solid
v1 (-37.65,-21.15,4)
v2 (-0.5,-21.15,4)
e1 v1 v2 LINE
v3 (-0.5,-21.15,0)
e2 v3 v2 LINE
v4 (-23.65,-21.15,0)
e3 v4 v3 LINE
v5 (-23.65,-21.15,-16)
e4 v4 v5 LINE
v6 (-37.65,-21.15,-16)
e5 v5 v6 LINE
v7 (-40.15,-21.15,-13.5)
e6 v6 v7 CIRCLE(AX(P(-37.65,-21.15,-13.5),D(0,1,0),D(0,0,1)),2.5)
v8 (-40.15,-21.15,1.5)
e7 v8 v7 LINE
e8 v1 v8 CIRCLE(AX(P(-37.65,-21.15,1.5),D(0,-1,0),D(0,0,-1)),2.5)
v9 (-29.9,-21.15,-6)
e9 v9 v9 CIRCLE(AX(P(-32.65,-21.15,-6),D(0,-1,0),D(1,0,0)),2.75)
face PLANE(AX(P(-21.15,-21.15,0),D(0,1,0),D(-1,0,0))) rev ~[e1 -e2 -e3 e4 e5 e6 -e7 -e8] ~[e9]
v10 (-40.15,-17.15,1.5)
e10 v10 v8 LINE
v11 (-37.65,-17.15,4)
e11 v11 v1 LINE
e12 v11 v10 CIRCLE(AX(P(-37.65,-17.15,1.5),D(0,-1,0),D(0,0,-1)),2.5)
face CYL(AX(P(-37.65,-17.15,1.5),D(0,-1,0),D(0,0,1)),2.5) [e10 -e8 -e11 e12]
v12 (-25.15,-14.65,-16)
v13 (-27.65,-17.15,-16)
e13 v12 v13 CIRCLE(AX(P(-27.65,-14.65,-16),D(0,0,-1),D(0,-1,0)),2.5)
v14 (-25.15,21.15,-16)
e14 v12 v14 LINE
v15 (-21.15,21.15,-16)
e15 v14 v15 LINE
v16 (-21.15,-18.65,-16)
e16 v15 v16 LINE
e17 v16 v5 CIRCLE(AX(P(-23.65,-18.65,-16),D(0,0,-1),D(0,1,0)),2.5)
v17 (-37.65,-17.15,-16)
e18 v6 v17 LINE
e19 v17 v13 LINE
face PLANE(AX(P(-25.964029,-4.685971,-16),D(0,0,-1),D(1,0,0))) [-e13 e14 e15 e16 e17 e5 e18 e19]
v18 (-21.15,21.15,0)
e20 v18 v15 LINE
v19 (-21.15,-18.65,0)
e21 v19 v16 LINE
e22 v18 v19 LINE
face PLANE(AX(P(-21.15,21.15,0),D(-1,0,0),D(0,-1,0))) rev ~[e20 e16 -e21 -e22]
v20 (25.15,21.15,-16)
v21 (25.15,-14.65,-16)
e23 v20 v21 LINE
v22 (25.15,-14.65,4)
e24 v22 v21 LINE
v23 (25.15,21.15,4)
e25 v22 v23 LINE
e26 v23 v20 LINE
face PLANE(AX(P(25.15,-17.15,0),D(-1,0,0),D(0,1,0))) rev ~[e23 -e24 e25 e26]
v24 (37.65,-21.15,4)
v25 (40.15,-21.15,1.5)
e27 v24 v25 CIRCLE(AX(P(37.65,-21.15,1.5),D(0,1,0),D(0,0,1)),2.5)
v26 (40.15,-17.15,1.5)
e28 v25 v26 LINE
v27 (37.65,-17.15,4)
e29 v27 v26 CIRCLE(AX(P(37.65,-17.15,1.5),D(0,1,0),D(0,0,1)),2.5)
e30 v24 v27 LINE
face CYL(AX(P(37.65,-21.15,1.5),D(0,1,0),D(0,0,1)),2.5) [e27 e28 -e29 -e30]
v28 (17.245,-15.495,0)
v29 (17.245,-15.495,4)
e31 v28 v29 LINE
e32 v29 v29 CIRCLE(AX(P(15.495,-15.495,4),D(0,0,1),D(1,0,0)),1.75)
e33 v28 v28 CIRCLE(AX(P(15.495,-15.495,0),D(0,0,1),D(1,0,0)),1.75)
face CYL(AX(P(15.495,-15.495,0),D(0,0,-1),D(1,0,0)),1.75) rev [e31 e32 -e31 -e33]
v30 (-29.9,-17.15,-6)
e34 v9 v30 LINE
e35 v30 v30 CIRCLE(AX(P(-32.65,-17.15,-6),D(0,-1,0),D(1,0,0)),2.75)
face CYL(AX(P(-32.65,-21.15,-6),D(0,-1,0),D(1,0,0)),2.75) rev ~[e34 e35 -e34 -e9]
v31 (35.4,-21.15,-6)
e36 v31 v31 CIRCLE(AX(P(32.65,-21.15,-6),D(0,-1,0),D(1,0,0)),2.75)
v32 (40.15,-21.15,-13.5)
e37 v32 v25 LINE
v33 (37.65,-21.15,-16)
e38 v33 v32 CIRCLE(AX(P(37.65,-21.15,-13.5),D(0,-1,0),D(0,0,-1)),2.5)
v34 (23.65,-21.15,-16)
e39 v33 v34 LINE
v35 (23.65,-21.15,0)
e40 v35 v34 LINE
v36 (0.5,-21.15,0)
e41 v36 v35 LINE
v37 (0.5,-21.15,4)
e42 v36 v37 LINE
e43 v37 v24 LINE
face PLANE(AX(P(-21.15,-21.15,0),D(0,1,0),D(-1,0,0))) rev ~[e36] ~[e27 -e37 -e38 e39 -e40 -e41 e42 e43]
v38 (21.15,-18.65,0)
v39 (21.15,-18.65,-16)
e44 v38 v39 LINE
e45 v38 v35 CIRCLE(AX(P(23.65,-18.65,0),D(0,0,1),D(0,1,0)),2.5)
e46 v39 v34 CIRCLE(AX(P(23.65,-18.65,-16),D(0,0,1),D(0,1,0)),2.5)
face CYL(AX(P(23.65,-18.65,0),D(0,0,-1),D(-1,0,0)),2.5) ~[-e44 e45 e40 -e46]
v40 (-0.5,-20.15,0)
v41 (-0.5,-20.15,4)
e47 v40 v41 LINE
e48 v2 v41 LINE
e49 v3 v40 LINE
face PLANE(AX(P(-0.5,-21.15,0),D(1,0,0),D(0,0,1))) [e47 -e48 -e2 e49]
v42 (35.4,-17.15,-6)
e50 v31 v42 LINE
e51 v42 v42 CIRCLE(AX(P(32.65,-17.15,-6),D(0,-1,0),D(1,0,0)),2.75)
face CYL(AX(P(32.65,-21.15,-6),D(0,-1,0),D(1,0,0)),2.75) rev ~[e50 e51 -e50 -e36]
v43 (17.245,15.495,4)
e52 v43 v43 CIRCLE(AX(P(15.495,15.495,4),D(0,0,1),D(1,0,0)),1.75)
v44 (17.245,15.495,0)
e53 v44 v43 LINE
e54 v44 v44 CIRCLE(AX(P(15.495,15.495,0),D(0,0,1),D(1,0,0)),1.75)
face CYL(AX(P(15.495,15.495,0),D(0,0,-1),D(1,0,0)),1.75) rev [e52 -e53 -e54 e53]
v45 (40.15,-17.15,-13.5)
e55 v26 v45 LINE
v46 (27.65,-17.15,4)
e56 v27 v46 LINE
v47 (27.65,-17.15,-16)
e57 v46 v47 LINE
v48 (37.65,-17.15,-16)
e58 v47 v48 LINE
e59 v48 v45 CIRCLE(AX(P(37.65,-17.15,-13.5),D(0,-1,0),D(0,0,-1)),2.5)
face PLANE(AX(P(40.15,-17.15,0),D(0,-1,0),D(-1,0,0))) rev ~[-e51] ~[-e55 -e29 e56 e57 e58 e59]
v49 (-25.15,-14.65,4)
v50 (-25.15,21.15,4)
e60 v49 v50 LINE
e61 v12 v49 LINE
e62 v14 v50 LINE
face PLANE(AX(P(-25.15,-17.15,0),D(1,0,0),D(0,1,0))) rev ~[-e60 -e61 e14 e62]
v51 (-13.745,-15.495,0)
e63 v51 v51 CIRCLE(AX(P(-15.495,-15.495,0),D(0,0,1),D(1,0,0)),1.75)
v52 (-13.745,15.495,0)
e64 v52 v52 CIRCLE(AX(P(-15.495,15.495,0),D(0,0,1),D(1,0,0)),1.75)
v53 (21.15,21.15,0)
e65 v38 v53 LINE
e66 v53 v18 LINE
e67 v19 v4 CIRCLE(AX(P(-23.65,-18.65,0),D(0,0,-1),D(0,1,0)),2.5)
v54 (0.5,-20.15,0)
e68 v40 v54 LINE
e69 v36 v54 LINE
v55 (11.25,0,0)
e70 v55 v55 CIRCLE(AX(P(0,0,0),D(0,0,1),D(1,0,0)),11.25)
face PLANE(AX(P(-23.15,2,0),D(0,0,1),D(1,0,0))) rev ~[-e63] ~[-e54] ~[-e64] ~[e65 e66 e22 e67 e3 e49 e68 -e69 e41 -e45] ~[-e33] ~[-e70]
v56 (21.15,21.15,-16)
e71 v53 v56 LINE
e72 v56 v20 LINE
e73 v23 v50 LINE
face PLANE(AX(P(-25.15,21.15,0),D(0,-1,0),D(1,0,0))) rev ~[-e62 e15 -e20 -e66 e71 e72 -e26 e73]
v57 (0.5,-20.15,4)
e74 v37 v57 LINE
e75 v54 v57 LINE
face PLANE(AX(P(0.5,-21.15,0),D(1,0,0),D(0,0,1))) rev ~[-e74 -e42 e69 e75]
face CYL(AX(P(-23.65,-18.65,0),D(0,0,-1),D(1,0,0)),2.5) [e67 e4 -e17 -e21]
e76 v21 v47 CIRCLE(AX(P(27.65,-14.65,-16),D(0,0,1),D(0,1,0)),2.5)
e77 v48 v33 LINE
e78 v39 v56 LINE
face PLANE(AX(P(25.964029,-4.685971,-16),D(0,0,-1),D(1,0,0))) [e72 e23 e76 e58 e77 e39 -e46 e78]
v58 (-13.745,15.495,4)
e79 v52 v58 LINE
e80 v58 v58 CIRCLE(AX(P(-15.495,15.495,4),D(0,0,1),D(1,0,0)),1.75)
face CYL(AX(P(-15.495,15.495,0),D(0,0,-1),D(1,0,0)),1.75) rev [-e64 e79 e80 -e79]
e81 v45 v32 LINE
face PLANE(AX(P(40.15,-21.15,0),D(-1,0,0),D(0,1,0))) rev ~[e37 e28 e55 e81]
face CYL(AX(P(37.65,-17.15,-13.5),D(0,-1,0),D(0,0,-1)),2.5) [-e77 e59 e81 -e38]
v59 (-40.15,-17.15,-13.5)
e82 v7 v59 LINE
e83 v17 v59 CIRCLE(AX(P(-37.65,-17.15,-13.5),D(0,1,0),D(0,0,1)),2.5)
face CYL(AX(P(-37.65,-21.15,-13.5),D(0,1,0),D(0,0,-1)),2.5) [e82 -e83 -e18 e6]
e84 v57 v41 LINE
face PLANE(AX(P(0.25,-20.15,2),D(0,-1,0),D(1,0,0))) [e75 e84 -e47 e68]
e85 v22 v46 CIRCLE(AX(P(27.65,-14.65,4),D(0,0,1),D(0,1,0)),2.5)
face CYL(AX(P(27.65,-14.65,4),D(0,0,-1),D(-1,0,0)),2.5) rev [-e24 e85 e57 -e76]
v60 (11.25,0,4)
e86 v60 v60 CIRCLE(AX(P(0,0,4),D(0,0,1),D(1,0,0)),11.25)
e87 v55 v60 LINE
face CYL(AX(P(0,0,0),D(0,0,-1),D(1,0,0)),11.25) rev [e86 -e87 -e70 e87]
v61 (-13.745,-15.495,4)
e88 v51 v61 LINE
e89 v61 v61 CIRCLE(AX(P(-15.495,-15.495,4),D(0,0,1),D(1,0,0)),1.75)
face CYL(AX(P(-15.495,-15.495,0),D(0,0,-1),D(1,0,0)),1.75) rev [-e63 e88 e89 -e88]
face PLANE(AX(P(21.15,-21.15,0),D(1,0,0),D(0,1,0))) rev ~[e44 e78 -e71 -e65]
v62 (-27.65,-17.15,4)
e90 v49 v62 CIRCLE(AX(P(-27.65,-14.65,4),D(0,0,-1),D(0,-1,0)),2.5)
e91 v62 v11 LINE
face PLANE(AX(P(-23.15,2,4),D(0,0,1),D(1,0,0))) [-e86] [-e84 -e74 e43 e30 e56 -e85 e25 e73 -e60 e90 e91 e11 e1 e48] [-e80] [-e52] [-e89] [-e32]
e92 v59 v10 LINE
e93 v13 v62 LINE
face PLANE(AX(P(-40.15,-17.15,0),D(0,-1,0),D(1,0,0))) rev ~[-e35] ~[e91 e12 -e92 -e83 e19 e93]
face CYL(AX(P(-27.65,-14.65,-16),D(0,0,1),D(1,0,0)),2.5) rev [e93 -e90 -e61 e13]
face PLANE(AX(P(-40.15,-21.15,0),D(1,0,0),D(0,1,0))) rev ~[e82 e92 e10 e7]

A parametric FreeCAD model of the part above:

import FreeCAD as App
import Part
import Sketcher


def edges_at(feature, points):
    """Names of the edges that pass closest to the given points."""
    edges = feature.Shape.Edges
    near = lambda p: min(range(len(edges)), key=lambda i: edges[i].distToShape(Part.Vertex(*p))[0])
    return sorted({f"Edge{near(p) + 1}" for p in points})

doc = App.newDocument("Part")
body = doc.addObject("PartDesign::Body", "Body")

sketch1 = body.newObject("Sketcher::SketchObject", "Sketch")
sketch1.AttachmentSupport = (doc.getObject("XY_Plane"), [""])
sketch1.MapMode = "FlatFace"
sketch1.addGeometry([
    Part.LineSegment(App.Vector(-25.15, 21.15, 0), App.Vector(-25.15, -17.15, 0)),
    Part.LineSegment(App.Vector(-25.15, -17.15, 0), App.Vector(-40.15, -17.15, 0)),
    Part.LineSegment(App.Vector(-40.15, -17.15, 0), App.Vector(-40.15, -21.15, 0)),
    Part.LineSegment(App.Vector(-40.15, -21.15, 0), App.Vector(40.15, -21.15, 0)),
    Part.LineSegment(App.Vector(40.15, -21.15, 0), App.Vector(40.15, -17.15, 0)),
    Part.LineSegment(App.Vector(40.15, -17.15, 0), App.Vector(25.15, -17.15, 0)),
    Part.LineSegment(App.Vector(25.15, -17.15, 0), App.Vector(25.15, 21.15, 0)),
    Part.LineSegment(App.Vector(25.15, 21.15, 0), App.Vector(-25.15, 21.15, 0)),
    Part.Circle(App.Vector(-15.495, -15.495, 0), App.Vector(0, 0, 1), 1.75),
    Part.Circle(App.Vector(15.495, -15.495, 0), App.Vector(0, 0, 1), 1.75),
    Part.Circle(App.Vector(-15.495, 15.495, 0), App.Vector(0, 0, 1), 1.75),
    Part.Circle(App.Vector(0, 0, 0), App.Vector(0, 0, 1), 11.25),
    Part.Circle(App.Vector(15.495, 15.495, 0), App.Vector(0, 0, 1), 1.75),
], False)
sketch1.addConstraint([
    Sketcher.Constraint("Coincident", 0, 2, 1, 1),
    Sketcher.Constraint("Coincident", 1, 2, 2, 1),
    Sketcher.Constraint("Coincident", 2, 2, 3, 1),
    Sketcher.Constraint("Coincident", 3, 2, 4, 1),
    Sketcher.Constraint("Coincident", 4, 2, 5, 1),
    Sketcher.Constraint("Coincident", 5, 2, 6, 1),
    Sketcher.Constraint("Coincident", 6, 2, 7, 1),
    Sketcher.Constraint("Coincident", 7, 2, 0, 1),
    Sketcher.Constraint("Vertical", 0),
    Sketcher.Constraint("Horizontal", 1),
    Sketcher.Constraint("Vertical", 2),
    Sketcher.Constraint("Horizontal", 3),
    Sketcher.Constraint("Vertical", 4),
    Sketcher.Constraint("Horizontal", 5),
    Sketcher.Constraint("Vertical", 6),
    Sketcher.Constraint("Horizontal", 7),
    Sketcher.Constraint("Coincident", 11, 3, -1, 1),
    Sketcher.Constraint("Equal", 8, 9),
    Sketcher.Constraint("Equal", 9, 10),
    Sketcher.Constraint("Equal", 10, 12),
    Sketcher.Constraint("Symmetric", 9, 3, 10, 3, -1, 1),
    Sketcher.Constraint("Symmetric", 8, 3, 12, 3, -1, 1),
    Sketcher.Constraint("Symmetric", 8, 3, 9, 3, -2),
    Sketcher.Constraint("Symmetric", 1, 2, 4, 2, -2),
    Sketcher.Constraint("Equal", 1, 5),
    Sketcher.Constraint("Diameter", 8, 3.5),
    Sketcher.Constraint("Diameter", 11, 22.5),
    Sketcher.Constraint("DistanceX", 1, 2, 1, 1, 15.0),
    Sketcher.Constraint("DistanceY", 2, 2, 2, 1, 4.0),
    Sketcher.Constraint("DistanceX", 3, 1, 3, 2, 80.3),
    Sketcher.Constraint("DistanceY", 0, 2, 0, 1, 38.3),
    Sketcher.Constraint("DistanceY", 0, 2, -1, 1, 17.15),
    Sketcher.Constraint("DistanceX", 8, 3, 9, 3, 30.99),
    Sketcher.Constraint("DistanceY", 8, 3, 10, 3, 30.99),
])
pad1 = body.newObject("PartDesign::Pad", "Pad")
pad1.Profile = sketch1
pad1.Length = 4

sketch2 = body.newObject("Sketcher::SketchObject", "Sketch001")
sketch2.AttachmentSupport = (doc.getObject("XY_Plane"), [""])
sketch2.MapMode = "FlatFace"
sketch2.addGeometry([
    Part.LineSegment(App.Vector(-25.15, 21.15, 0), App.Vector(-21.15, 21.15, 0)),
    Part.LineSegment(App.Vector(-21.15, 21.15, 0), App.Vector(-21.15, -21.15, 0)),
    Part.LineSegment(App.Vector(-21.15, -21.15, 0), App.Vector(-40.15, -21.15, 0)),
    Part.LineSegment(App.Vector(-40.15, -21.15, 0), App.Vector(-40.15, -17.15, 0)),
    Part.LineSegment(App.Vector(-40.15, -17.15, 0), App.Vector(-25.15, -17.15, 0)),
    Part.LineSegment(App.Vector(-25.15, -17.15, 0), App.Vector(-25.15, 21.15, 0)),
    Part.LineSegment(App.Vector(21.15, 21.15, 0), App.Vector(25.15, 21.15, 0)),
    Part.LineSegment(App.Vector(25.15, 21.15, 0), App.Vector(25.15, -17.15, 0)),
    Part.LineSegment(App.Vector(25.15, -17.15, 0), App.Vector(40.15, -17.15, 0)),
    Part.LineSegment(App.Vector(40.15, -17.15, 0), App.Vector(40.15, -21.15, 0)),
    Part.LineSegment(App.Vector(40.15, -21.15, 0), App.Vector(21.15, -21.15, 0)),
    Part.LineSegment(App.Vector(21.15, -21.15, 0), App.Vector(21.15, 21.15, 0)),
], False)
sketch2.addConstraint([
    Sketcher.Constraint("Coincident", 0, 2, 1, 1),
    Sketcher.Constraint("Coincident", 1, 2, 2, 1),
    Sketcher.Constraint("Coincident", 2, 2, 3, 1),
    Sketcher.Constraint("Coincident", 3, 2, 4, 1),
    Sketcher.Constraint("Coincident", 4, 2, 5, 1),
    Sketcher.Constraint("Coincident", 5, 2, 0, 1),
    Sketcher.Constraint("Coincident", 6, 2, 7, 1),
    Sketcher.Constraint("Coincident", 7, 2, 8, 1),
    Sketcher.Constraint("Coincident", 8, 2, 9, 1),
    Sketcher.Constraint("Coincident", 9, 2, 10, 1),
    Sketcher.Constraint("Coincident", 10, 2, 11, 1),
    Sketcher.Constraint("Coincident", 11, 2, 6, 1),
    Sketcher.Constraint("Horizontal", 0),
    Sketcher.Constraint("Vertical", 1),
    Sketcher.Constraint("Horizontal", 2),
    Sketcher.Constraint("Vertical", 3),
    Sketcher.Constraint("Horizontal", 4),
    Sketcher.Constraint("Vertical", 5),
    Sketcher.Constraint("Horizontal", 6),
    Sketcher.Constraint("Vertical", 7),
    Sketcher.Constraint("Horizontal", 8),
    Sketcher.Constraint("Vertical", 9),
    Sketcher.Constraint("Horizontal", 10),
    Sketcher.Constraint("Vertical", 11),
    Sketcher.Constraint("Symmetric", 0, 2, 10, 2, -1, 1),
    Sketcher.Constraint("Symmetric", 5, 2, 6, 2, -2),
    Sketcher.Constraint("Symmetric", 3, 2, 8, 2, -2),
    Sketcher.Constraint("Horizontal", 2, 2, 9, 2),
    Sketcher.Constraint("Equal", 6, 3),
    Sketcher.Constraint("DistanceX", 0, 1, 0, 2, 4.0),
    Sketcher.Constraint("DistanceX", 2, 2, 2, 1, 19.0),
    Sketcher.Constraint("DistanceY", 1, 2, 1, 1, 42.3),
    Sketcher.Constraint("DistanceX", 0, 2, 6, 2, 46.3),
])
pad2 = body.newObject("PartDesign::Pad", "Pad001")
pad2.Profile = sketch2
pad2.Length = 16
pad2.Reversed = True

sketch3 = body.newObject("Sketcher::SketchObject", "Sketch002")
sketch3.AttachmentSupport = (doc.getObject("XZ_Plane"), [""])
sketch3.MapMode = "FlatFace"
sketch3.AttachmentOffset = App.Placement(App.Vector(0, 0, 21.15), App.Rotation())
sketch3.addGeometry([
    Part.Circle(App.Vector(-32.65, -6, 0), App.Vector(0, 0, 1), 2.75),
    Part.Circle(App.Vector(32.65, -6, 0), App.Vector(0, 0, 1), 2.75),
], False)
sketch3.addConstraint([
    Sketcher.Constraint("Equal", 0, 1),
    Sketcher.Constraint("Symmetric", 0, 3, 1, 3, -2),
    Sketcher.Constraint("Diameter", 0, 5.5),
    Sketcher.Constraint("DistanceY", 0, 3, -1, 1, 6.0),
    Sketcher.Constraint("DistanceX", 0, 3, 1, 3, 65.3),
])
pocket1 = body.newObject("PartDesign::Pocket", "Pocket")
pocket1.Profile = sketch3
pocket1.Type = "ThroughAll"
doc.recompute()

fillet = body.newObject("PartDesign::Fillet", "Fillet")
fillet.Base = (pocket1, edges_at(pocket1, [
    (-40.15, -19.15, 4),
    (-40.15, -19.15, -16),
    (40.15, -19.15, -16),
    (40.15, -19.15, 4),
    (25.15, -17.15, -6),
    (-25.15, -17.15, -6),
    (21.15, -21.15, -8),
    (-21.15, -21.15, -8),
]))
fillet.Radius = 2.5

sketch4 = body.newObject("Sketcher::SketchObject", "Sketch003")
sketch4.AttachmentSupport = (doc.getObject("XZ_Plane"), [""])
sketch4.MapMode = "FlatFace"
sketch4.AttachmentOffset = App.Placement(App.Vector(0, 0, 21.15), App.Rotation())
sketch4.addGeometry([
    Part.LineSegment(App.Vector(0.5, 0, 0), App.Vector(0.5, 4, 0)),
    Part.LineSegment(App.Vector(0.5, 4, 0), App.Vector(-0.5, 4, 0)),
    Part.LineSegment(App.Vector(-0.5, 4, 0), App.Vector(-0.5, 0, 0)),
    Part.LineSegment(App.Vector(-0.5, 0, 0), App.Vector(0.5, 0, 0)),
], False)
sketch4.addConstraint([
    Sketcher.Constraint("Coincident", 0, 2, 1, 1),
    Sketcher.Constraint("Coincident", 1, 2, 2, 1),
    Sketcher.Constraint("Coincident", 2, 2, 3, 1),
    Sketcher.Constraint("Coincident", 3, 2, 0, 1),
    Sketcher.Constraint("Vertical", 0),
    Sketcher.Constraint("Horizontal", 1),
    Sketcher.Constraint("Vertical", 2),
    Sketcher.Constraint("Horizontal", 3),
    Sketcher.Constraint("Symmetric", 2, 2, 3, 2, -1, 1),
    Sketcher.Constraint("DistanceX", 1, 2, 1, 1, 1.0),
    Sketcher.Constraint("DistanceY", 0, 1, 0, 2, 4.0),
])
pocket2 = body.newObject("PartDesign::Pocket", "Pocket001")
pocket2.Profile = sketch4
pocket2.Length = 1

doc.recompute()
